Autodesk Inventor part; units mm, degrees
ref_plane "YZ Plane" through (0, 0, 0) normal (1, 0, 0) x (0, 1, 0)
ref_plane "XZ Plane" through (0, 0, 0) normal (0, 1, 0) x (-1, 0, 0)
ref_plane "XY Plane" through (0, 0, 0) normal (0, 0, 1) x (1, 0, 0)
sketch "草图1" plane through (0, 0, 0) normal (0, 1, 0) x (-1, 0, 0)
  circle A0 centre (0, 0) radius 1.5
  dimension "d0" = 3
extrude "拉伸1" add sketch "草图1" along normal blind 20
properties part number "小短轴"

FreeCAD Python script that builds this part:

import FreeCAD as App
import Part
import Sketcher

V = App.Vector
Q = App.Units.Quantity

doc = App.newDocument("Part")
params = doc.addObject("Spreadsheet::Sheet", "Params")
for row, (alias, value) in enumerate([
    ("sketch1_diameter", "3 mm"),
    ("pad1_length", "20 mm"),
], start=1):
    params.set(f"A{row}", alias)
    params.set(f"B{row}", "=" + value)
    params.setAlias(f"B{row}", alias)

body = doc.addObject("PartDesign::Body", "Body")

sketch1 = doc.addObject("Sketcher::SketchObject", "Sketch")
body.addObject(sketch1)
sketch1.AttachmentSupport = (doc.XZ_Plane, [""])
sketch1.MapMode = "FlatFace"
sketch1.addGeometry(Part.Circle(V(0, 0, 0), V(0, 0, 1), 1.5), False)
sketch1.addConstraint([
    Sketcher.Constraint("Coincident", 0, 3, -1, 1),
    Sketcher.Constraint("Diameter", 0, Q("3 mm")),
])
sketch1.setExpression("Constraints[1]", "Params.sketch1_diameter")
pad1 = doc.addObject("PartDesign::Pad", "Pad")
body.addObject(pad1)
pad1.Profile = sketch1
pad1.setExpression("Length", "Params.pad1_length")
pad1.Reversed = True

doc.recompute()
